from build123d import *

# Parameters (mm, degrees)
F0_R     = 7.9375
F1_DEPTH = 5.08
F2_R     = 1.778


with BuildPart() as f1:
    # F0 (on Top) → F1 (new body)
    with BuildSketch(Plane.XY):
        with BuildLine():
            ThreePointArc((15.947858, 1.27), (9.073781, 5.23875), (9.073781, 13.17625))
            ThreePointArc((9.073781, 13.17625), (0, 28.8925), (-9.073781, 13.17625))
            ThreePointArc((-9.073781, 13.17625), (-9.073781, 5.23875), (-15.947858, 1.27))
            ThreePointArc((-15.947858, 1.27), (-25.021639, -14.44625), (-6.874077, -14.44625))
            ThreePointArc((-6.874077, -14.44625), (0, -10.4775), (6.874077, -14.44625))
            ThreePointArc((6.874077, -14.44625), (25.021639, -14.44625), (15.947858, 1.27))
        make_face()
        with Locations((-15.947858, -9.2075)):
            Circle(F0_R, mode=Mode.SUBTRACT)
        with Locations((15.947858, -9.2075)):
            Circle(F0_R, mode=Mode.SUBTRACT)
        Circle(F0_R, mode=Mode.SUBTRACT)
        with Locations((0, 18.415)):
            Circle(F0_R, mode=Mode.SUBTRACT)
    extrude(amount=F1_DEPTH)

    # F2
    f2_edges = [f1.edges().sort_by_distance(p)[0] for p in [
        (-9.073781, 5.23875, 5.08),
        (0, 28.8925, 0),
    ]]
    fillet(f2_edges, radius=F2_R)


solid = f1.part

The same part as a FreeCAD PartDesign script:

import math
import FreeCAD as App
import Part
import Sketcher
from FreeCAD import Vector
Q = App.Units.Quantity


def edges_at(feature, points):
    """Names of the edges that pass closest to the given points."""
    edges = feature.Shape.Edges
    near = lambda p: min(range(len(edges)), key=lambda i: edges[i].distToShape(Part.Vertex(*p))[0])
    return sorted({f"Edge{near(p) + 1}" for p in points})

doc = App.newDocument("Part")
params = doc.addObject("Spreadsheet::Sheet", "Params")
for row, (alias, value) in enumerate([
    ("sketch1_diameter", "0.625 in"),
    ("pad1_length", "0.2 in"),
    ("fillet_radius", "0.07 in"),
], start=1):
    params.set(f"A{row}", alias)
    params.set(f"B{row}", "=" + value)
    params.setAlias(f"B{row}", alias)

body = doc.addObject("PartDesign::Body", "Body")

sketch1 = doc.addObject("Sketcher::SketchObject", "Sketch")
body.addObject(sketch1)
sketch1.AttachmentSupport = (doc.XY_Plane, [""])
sketch1.MapMode = "FlatFace"
sketch1.addGeometry([
    Part.ArcOfCircle(Part.Circle(Vector(15.947858, 9.2075, 0), Vector(0, 0, 1), 7.9375), math.radians(150), math.radians(270.000003)),
    Part.ArcOfCircle(Part.Circle(Vector(0, 18.415, 0), Vector(0, 0, 1), 10.4775), math.radians(-30.000001), math.radians(210.000001)),
    Part.ArcOfCircle(Part.Circle(Vector(-15.947858, 9.2075, 0), Vector(0, 0, 1), 7.9375), math.radians(-90.000003), math.radians(30)),
    Part.ArcOfCircle(Part.Circle(Vector(-15.947858, -9.2075, 0), Vector(0, 0, 1), 10.4775), math.radians(90), math.radians(329.999999)),
    Part.ArcOfCircle(Part.Circle(Vector(0, -18.415001, 0), Vector(0, 0, 1), 7.937501), math.radians(30.000003), math.radians(149.999997)),
    Part.ArcOfCircle(Part.Circle(Vector(15.947858, -9.2075, 0), Vector(0, 0, 1), 10.4775), math.radians(-149.999999), math.radians(90)),
    Part.Circle(Vector(-15.947858, -9.2075, 0), Vector(0, 0, 1), 7.9375),
    Part.Circle(Vector(15.947858, -9.2075, 0), Vector(0, 0, 1), 7.9375),
    Part.Circle(Vector(0, 0, 0), Vector(0, 0, 1), 7.9375),
    Part.Circle(Vector(0, 18.415, 0), Vector(0, 0, 1), 7.9375),
], False)
sketch1.addConstraint([
    Sketcher.Constraint("Tangent", 0, 1, 1, 1),
    Sketcher.Constraint("Tangent", 1, 2, 2, 2),
    Sketcher.Constraint("Tangent", 2, 1, 3, 1),
    Sketcher.Constraint("Tangent", 3, 2, 4, 2),
    Sketcher.Constraint("Tangent", 4, 1, 5, 1),
    Sketcher.Constraint("Tangent", 5, 2, 0, 2),
    Sketcher.Constraint("Coincident", 8, 3, -1, 1),
    Sketcher.Constraint("Coincident", 6, 3, 3, 3),
    Sketcher.Constraint("Coincident", 7, 3, 5, 3),
    Sketcher.Constraint("Coincident", 9, 3, 1, 3),
    Sketcher.Constraint("Equal", 0, 2),
    Sketcher.Constraint("Equal", 1, 3),
    Sketcher.Constraint("Equal", 2, 4),
    Sketcher.Constraint("Equal", 3, 5),
    Sketcher.Constraint("Equal", 4, 6),
    Sketcher.Constraint("Equal", 6, 7),
    Sketcher.Constraint("Equal", 7, 8),
    Sketcher.Constraint("Equal", 8, 9),
    Sketcher.Constraint("Symmetric", 0, 3, 3, 3, -1, 1),
    Sketcher.Constraint("Symmetric", 0, 3, 2, 3, -2),
    Sketcher.Constraint("PointOnObject", 4, 3, -2),
    Sketcher.Constraint("Diameter", 6, Q("0.625 in")),
    Sketcher.Constraint("Radius", 1, Q("0.4125 in")),
    Sketcher.Constraint("DistanceY", 4, 3, 1, 3, Q("1.45 in")),
])
sketch1.setExpression("Constraints[21]", "Params.sketch1_diameter")
pad1 = doc.addObject("PartDesign::Pad", "Pad")
body.addObject(pad1)
pad1.Profile = sketch1
pad1.setExpression("Length", "Params.pad1_length")
doc.recompute()

fillet = doc.addObject("PartDesign::Fillet", "Fillet")
body.addObject(fillet)
fillet.Base = (pad1, edges_at(pad1, [(-9.074, 5.239, 5.08), (0, 28.892, 0)]))
fillet.setExpression("Radius", "Params.fillet_radius")

doc.recompute()
